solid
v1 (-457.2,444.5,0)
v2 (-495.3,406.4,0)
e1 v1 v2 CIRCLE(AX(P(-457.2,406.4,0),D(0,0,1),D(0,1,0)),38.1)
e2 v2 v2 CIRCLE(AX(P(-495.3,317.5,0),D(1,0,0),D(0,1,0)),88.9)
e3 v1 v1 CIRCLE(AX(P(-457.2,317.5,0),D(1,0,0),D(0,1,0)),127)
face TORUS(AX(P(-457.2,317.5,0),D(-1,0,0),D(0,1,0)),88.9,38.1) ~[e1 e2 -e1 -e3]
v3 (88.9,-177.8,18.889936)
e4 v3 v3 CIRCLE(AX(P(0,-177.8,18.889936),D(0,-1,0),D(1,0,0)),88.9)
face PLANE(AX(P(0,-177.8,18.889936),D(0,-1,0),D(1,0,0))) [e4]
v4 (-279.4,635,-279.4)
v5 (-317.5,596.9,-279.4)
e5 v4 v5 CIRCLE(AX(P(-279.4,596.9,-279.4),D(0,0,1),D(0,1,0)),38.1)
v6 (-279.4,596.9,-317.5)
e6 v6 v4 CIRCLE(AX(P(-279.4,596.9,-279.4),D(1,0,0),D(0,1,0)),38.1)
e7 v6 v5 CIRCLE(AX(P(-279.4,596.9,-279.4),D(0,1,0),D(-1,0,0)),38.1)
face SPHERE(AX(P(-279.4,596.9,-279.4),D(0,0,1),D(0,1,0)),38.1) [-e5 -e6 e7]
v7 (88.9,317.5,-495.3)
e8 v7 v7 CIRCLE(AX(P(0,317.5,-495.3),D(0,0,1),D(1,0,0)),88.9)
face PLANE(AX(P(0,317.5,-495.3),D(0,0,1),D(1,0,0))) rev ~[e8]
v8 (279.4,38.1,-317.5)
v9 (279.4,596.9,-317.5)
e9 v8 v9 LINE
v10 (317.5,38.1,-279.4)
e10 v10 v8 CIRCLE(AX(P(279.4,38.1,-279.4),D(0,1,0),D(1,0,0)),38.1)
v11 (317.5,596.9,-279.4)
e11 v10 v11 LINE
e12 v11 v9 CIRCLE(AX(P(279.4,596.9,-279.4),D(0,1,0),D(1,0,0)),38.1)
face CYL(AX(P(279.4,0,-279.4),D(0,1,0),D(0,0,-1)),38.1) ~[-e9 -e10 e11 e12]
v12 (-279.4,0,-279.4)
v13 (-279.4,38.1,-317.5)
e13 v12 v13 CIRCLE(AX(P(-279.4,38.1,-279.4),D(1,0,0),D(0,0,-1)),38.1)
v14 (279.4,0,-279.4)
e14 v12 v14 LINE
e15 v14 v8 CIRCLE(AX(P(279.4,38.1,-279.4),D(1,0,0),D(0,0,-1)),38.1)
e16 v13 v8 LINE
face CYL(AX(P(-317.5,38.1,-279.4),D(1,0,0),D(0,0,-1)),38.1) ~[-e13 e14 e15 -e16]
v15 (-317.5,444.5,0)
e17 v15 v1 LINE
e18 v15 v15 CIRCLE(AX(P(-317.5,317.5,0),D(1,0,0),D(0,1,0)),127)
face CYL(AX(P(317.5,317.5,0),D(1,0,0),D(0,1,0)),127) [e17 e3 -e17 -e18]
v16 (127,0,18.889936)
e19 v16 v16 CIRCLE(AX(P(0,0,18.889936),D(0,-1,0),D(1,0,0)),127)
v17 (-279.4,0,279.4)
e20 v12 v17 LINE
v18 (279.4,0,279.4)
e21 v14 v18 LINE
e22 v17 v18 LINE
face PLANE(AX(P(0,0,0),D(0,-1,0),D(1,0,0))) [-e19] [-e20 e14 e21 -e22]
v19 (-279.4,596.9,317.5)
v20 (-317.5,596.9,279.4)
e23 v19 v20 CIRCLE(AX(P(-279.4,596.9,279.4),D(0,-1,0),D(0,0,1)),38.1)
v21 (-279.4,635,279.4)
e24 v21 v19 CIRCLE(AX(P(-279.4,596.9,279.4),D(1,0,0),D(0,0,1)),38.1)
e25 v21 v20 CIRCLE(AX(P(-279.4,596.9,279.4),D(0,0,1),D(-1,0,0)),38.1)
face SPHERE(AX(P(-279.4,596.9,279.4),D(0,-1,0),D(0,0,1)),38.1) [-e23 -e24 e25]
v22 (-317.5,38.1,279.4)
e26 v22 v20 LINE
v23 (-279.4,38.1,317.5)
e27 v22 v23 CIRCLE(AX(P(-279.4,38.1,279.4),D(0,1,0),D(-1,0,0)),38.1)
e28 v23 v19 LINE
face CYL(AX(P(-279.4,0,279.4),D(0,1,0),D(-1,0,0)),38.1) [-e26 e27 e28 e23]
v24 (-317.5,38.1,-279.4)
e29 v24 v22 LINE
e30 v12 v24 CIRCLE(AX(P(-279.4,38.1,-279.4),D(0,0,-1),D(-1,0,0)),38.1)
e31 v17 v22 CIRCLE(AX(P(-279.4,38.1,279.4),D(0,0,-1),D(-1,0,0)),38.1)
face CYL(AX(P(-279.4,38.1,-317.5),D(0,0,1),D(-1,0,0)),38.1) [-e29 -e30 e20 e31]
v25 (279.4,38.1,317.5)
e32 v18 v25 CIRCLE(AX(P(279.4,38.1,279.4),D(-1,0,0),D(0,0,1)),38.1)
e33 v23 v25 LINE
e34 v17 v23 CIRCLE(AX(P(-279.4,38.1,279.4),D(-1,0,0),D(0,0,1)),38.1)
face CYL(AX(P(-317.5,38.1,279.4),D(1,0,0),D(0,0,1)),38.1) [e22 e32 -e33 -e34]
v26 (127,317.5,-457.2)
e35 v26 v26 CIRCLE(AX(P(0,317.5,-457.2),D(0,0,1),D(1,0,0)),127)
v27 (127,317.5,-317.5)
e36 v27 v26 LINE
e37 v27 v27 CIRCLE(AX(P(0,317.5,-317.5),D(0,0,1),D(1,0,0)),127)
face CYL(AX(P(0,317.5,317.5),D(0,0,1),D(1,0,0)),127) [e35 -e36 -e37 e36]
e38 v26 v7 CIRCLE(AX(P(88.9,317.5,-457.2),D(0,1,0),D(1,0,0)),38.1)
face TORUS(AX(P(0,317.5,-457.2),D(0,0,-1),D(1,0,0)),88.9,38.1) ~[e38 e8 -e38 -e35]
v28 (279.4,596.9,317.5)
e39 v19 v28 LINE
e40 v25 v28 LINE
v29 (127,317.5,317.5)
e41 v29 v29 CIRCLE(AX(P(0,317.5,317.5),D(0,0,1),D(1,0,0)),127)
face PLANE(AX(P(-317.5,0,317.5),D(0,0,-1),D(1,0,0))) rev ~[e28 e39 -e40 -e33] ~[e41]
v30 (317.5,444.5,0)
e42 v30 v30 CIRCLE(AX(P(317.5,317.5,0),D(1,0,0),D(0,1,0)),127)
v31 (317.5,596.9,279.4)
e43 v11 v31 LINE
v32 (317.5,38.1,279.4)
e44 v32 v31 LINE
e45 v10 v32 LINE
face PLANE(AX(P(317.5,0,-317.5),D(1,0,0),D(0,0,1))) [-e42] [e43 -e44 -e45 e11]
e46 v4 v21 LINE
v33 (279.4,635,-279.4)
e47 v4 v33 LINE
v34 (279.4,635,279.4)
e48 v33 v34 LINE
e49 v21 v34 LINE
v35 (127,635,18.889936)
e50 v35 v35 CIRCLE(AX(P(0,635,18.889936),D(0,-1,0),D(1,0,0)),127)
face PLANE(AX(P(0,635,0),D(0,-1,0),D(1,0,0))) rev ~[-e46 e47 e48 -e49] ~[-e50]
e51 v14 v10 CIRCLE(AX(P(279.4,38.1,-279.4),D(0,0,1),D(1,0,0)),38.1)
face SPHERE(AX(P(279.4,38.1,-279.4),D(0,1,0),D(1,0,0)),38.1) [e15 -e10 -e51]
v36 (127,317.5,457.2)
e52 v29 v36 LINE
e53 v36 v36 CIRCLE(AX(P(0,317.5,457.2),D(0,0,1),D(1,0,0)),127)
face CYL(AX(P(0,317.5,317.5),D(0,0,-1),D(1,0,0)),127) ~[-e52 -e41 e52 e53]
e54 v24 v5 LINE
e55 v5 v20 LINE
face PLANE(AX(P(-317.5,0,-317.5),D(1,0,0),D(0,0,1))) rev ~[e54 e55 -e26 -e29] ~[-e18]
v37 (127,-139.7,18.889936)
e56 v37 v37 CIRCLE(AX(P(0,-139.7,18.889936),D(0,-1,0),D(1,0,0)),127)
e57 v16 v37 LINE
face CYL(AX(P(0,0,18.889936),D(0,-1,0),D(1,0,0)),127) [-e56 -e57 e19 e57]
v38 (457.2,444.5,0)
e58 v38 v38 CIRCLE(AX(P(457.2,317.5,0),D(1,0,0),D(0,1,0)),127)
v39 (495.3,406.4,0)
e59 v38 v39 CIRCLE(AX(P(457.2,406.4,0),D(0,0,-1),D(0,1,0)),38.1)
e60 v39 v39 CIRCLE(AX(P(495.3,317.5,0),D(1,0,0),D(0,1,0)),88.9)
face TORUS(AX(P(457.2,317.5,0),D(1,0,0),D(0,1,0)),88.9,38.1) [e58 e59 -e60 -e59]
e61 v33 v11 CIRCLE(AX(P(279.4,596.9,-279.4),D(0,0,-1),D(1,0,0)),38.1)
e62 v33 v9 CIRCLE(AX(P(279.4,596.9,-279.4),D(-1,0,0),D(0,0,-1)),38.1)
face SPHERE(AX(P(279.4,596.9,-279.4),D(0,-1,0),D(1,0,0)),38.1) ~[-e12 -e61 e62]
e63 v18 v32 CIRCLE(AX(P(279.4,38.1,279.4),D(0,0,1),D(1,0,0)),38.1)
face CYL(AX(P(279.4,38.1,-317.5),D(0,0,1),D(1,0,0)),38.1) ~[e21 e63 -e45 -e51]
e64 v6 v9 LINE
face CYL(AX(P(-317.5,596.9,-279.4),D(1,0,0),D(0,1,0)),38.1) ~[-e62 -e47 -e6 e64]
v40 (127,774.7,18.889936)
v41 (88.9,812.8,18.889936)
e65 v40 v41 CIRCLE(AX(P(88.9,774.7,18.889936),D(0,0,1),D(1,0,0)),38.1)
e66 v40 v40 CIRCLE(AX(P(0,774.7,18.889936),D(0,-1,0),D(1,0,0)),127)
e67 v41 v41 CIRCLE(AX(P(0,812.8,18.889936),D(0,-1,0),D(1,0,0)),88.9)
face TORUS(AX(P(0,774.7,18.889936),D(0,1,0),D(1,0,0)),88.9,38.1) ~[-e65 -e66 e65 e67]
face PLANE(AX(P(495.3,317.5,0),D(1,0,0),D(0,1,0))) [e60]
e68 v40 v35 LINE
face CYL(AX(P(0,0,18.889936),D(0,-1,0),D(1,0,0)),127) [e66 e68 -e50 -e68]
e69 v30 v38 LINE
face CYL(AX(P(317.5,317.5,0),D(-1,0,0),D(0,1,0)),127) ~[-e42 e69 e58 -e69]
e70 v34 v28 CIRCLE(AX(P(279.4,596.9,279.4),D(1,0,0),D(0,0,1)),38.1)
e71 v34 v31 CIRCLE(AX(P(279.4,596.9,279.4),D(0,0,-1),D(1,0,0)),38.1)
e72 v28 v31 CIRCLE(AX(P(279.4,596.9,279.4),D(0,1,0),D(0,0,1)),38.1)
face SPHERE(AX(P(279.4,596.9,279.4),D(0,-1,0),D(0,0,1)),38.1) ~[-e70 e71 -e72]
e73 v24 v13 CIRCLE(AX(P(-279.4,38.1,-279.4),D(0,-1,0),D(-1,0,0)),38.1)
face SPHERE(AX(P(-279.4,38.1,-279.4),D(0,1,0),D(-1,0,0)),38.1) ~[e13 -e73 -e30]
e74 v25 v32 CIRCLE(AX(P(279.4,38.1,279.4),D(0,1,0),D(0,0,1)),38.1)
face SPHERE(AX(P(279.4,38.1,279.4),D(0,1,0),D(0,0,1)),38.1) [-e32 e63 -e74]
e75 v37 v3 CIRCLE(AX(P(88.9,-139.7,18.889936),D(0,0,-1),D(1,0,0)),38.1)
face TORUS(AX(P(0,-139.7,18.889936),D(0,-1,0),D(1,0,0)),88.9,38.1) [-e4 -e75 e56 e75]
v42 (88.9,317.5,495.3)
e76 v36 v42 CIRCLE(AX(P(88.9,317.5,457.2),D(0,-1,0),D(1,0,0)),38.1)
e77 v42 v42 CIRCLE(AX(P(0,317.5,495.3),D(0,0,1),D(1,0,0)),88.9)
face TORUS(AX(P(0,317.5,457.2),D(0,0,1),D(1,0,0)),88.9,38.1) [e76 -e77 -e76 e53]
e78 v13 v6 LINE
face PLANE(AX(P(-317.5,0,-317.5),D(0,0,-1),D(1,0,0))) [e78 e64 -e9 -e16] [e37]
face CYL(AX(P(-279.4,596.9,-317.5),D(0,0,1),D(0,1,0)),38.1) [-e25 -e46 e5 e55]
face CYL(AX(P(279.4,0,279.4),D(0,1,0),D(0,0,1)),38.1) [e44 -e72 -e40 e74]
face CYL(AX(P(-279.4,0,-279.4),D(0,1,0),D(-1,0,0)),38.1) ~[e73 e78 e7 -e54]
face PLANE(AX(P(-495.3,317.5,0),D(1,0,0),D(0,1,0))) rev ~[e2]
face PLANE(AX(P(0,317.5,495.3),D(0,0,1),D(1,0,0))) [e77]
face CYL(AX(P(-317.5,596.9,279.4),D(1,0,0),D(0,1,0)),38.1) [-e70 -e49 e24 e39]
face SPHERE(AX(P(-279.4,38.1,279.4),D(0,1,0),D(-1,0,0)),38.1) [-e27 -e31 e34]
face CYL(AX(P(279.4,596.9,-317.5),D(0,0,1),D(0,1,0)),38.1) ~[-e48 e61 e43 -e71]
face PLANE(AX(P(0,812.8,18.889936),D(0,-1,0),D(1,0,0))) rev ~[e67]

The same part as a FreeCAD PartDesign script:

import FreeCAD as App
import Part
import Sketcher

V = App.Vector
Q = App.Units.Quantity


def edges_at(feature, points):
    """Names of the edges that pass closest to the given points."""
    edges = feature.Shape.Edges
    near = lambda p: min(range(len(edges)), key=lambda i: edges[i].distToShape(Part.Vertex(*p))[0])
    return sorted({f"Edge{near(p) + 1}" for p in points})

doc = App.newDocument("Part")
body = doc.addObject("PartDesign::Body", "Body")

# Sketch on XZ plane
sketch1 = body.newObject("Sketcher::SketchObject", "Sketch")
sketch1.AttachmentSupport = (doc.getObject("XZ_Plane"), [""])
sketch1.MapMode = "FlatFace"
sketch1.addGeometry(Part.Circle(V(0, 19, 0), V(0, 0, 1), 127), False)
sketch1.addConstraint([
    Sketcher.Constraint("PointOnObject", 0, 3, -2),
    Sketcher.Constraint("Diameter", 0, Q("10 in")),
    Sketcher.Constraint("DistanceY", -1, 1, 0, 3, Q("18.889936 mm")),
])
pad1 = body.newObject("PartDesign::Pad", "Pad")
pad1.Profile = sketch1
pad1.Type = "TwoLengths"
pad1.Length = Q("7 in")
pad1.Length2 = Q("32 in")

# Sketch on XZ plane
sketch2 = body.newObject("Sketcher::SketchObject", "Sketch001")
sketch2.AttachmentSupport = (doc.getObject("XZ_Plane"), [""])
sketch2.MapMode = "FlatFace"
sketch2.addGeometry([
    Part.LineSegment(V(-318, 318, 0), V(-318, -318, 0)),  # 0
    Part.LineSegment(V(-318, -318, 0), V(318, -318, 0)),  # 1
    Part.LineSegment(V(318, -318, 0), V(318, 318, 0)),  # 2
    Part.LineSegment(V(318, 318, 0), V(-318, 318, 0)),  # 3
    Part.Circle(V(0, 19, 0), V(0, 0, 1), 127),  # 4
], False)
sketch2.addConstraint([
    Sketcher.Constraint("Coincident", 0, 2, 1, 1),
    Sketcher.Constraint("Coincident", 1, 2, 2, 1),
    Sketcher.Constraint("Coincident", 2, 2, 3, 1),
    Sketcher.Constraint("Coincident", 3, 2, 0, 1),
    Sketcher.Constraint("Vertical", 0),
    Sketcher.Constraint("Horizontal", 1),
    Sketcher.Constraint("Vertical", 2),
    Sketcher.Constraint("Horizontal", 3),
    Sketcher.Constraint("Symmetric", 0, 2, 2, 2, -1, 1),
    Sketcher.Constraint("PointOnObject", 4, 3, -2),
    Sketcher.Constraint("Equal", 3, 0),
    Sketcher.Constraint("Diameter", 4, Q("10 in")),
    Sketcher.Constraint("DistanceX", 1, 1, 1, 2, Q("25 in")),
    Sketcher.Constraint("DistanceY", -1, 1, 4, 3, Q("18.889936 mm")),
])
pad2 = body.newObject("PartDesign::Pad", "Pad001")
pad2.Profile = sketch2
pad2.Length = Q("25 in")
pad2.Reversed = True
doc.recompute()

fillet = body.newObject("PartDesign::Fillet", "Fillet")
fillet.Base = (pad2, edges_at(pad2, [
    (317.5, 317.5, -317.5),
    (317.5, 317.5, 317.5),
    (-317.5, 317.5, 317.5),
    (0, 635, 317.5),
    (-317.5, 635, 0),
    (317.5, 635, 0),
    (0, 635, -317.5),
    (-317.5, 317.5, -317.5),
    (-317.5, 0, 0),
    (0, 0, 317.5),
    (317.5, 0, 0),
    (0, 0, -317.5),
]))
fillet.Radius = Q("1.5 in")

# Sketch on XY plane
sketch3 = body.newObject("Sketcher::SketchObject", "Sketch002")
sketch3.AttachmentSupport = (doc.getObject("XY_Plane"), [""])
sketch3.MapMode = "FlatFace"
sketch3.AttachmentOffset = App.Placement(V(0, 0, 12.5 * 25.4), App.Rotation())
sketch3.addGeometry(Part.Circle(V(0, 318, 0), V(0, 0, 1), 127), False)
sketch3.addConstraint([
    Sketcher.Constraint("PointOnObject", 0, 3, -2),
    Sketcher.Constraint("Diameter", 0, Q("10 in")),
    Sketcher.Constraint("DistanceY", -1, 1, 0, 3, Q("12.5 in")),
])
pad3 = body.newObject("PartDesign::Pad", "Pad002")
pad3.Profile = sketch3
pad3.Type = "TwoLengths"
pad3.Length = Q("7 in")
pad3.Length2 = Q("32 in")

# Sketch on YZ plane
sketch4 = body.newObject("Sketcher::SketchObject", "Sketch003")
sketch4.AttachmentSupport = (doc.getObject("YZ_Plane"), [""])
sketch4.MapMode = "FlatFace"
sketch4.AttachmentOffset = App.Placement(V(0, 0, 12.5 * 25.4), App.Rotation())
sketch4.addGeometry(Part.Circle(V(318, 0, 0), V(0, 0, 1), 127), False)
sketch4.addConstraint([
    Sketcher.Constraint("PointOnObject", 0, 3, -1),
    Sketcher.Constraint("Diameter", 0, Q("10 in")),
    Sketcher.Constraint("DistanceX", -1, 1, 0, 3, Q("12.5 in")),
])
pad4 = body.newObject("PartDesign::Pad", "Pad003")
pad4.Profile = sketch4
pad4.Type = "TwoLengths"
pad4.Length = Q("7 in")
pad4.Length2 = Q("32 in")
doc.recompute()

fillet2 = body.newObject("PartDesign::Fillet", "Fillet001")
fillet2.Base = (pad4, edges_at(pad4, [
    (-127, 812.8, 18.89),
    (495.3, 190.5, 0),
    (-127, 317.5, 495.3),
    (-495.3, 190.5, 0),
    (-127, -177.8, 18.89),
    (-127, 317.5, -495.3),
]))
fillet2.Radius = Q("1.5 in")

doc.recompute()
